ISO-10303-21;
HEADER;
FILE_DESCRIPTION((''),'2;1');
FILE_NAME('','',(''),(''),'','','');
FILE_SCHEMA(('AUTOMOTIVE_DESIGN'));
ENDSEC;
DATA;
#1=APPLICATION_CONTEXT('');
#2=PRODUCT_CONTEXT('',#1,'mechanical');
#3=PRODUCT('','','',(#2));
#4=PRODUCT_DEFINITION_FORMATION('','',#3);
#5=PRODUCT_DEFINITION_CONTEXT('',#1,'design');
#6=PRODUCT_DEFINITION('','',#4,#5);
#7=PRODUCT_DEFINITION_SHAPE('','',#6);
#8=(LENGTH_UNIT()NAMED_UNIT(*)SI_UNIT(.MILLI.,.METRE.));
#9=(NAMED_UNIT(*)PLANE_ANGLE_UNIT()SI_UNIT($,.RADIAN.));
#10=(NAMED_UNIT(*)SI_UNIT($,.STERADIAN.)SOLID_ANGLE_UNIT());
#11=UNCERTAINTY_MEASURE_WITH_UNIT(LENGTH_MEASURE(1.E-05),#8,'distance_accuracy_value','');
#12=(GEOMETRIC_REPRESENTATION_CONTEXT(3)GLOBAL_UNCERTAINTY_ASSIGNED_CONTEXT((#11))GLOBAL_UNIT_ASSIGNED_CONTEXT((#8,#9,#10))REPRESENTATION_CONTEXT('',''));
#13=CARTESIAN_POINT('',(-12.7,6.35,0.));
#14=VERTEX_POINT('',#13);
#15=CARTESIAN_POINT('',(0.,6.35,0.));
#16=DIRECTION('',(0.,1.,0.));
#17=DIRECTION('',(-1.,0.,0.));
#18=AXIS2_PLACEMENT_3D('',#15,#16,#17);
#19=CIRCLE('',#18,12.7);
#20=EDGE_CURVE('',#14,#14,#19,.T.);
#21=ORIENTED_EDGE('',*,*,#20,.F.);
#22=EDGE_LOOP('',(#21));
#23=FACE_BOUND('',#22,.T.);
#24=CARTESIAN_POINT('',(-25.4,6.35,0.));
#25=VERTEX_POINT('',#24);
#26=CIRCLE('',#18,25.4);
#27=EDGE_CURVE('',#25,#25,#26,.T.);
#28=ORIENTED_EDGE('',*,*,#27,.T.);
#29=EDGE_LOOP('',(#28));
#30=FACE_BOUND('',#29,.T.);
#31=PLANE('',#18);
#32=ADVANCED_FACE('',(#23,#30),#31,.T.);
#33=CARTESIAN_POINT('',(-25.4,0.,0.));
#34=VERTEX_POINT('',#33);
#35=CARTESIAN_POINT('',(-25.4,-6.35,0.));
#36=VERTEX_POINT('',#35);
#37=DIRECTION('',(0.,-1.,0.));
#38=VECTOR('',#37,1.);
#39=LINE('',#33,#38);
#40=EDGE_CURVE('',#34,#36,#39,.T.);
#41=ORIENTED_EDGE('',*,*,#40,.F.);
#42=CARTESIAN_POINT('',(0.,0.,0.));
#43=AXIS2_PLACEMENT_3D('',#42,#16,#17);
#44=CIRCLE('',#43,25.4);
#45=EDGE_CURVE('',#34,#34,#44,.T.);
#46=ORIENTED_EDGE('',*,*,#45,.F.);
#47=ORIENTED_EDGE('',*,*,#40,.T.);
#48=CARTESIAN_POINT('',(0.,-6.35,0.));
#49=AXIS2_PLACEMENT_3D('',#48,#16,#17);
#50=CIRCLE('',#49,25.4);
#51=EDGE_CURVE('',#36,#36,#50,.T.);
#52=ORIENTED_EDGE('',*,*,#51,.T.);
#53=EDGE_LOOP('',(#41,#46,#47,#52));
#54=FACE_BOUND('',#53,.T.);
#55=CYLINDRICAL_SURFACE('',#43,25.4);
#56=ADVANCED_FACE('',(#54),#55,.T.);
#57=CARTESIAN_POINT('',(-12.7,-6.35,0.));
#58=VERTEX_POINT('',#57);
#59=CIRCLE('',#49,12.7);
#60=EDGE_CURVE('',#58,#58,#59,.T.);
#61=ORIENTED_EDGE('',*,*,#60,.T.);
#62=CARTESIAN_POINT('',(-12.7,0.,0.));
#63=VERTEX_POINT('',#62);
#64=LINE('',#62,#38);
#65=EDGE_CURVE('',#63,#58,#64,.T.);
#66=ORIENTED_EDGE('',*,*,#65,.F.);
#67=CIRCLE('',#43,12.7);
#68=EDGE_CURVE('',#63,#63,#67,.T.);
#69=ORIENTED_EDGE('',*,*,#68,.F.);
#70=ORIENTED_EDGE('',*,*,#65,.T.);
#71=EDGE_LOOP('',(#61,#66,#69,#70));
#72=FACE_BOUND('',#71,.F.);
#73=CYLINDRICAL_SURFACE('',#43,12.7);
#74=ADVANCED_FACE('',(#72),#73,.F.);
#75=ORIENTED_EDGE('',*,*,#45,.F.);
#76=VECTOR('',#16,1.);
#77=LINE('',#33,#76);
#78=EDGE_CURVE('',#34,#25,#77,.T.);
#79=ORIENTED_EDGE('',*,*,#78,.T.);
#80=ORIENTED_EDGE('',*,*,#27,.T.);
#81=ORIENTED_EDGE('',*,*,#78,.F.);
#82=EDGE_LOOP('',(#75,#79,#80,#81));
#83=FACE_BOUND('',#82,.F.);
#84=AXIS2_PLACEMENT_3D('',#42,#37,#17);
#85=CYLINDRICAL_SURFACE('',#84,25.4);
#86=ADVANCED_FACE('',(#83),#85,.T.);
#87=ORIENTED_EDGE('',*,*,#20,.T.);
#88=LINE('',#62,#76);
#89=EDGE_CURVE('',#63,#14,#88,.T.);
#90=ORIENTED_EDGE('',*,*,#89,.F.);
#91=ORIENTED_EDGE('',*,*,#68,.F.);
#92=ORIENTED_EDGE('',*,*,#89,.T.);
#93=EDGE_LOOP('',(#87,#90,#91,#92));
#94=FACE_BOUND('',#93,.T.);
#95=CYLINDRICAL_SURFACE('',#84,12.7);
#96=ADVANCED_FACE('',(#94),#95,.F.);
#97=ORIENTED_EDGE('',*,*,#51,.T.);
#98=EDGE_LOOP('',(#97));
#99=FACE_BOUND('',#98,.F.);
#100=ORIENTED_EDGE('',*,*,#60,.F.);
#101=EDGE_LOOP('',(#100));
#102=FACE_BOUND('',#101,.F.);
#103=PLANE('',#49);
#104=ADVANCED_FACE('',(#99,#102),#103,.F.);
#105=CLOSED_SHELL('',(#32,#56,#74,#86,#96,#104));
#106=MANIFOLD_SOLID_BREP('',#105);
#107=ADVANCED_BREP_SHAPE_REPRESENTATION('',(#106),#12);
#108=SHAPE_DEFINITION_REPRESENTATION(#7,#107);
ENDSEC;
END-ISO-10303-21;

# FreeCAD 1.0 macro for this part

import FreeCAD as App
import Part
import Sketcher

V = App.Vector
Q = App.Units.Quantity

doc = App.newDocument("Part")
body = doc.addObject("PartDesign::Body", "Body")

# Sketch on XZ plane
sketch1 = body.newObject("Sketcher::SketchObject", "Sketch")
sketch1.AttachmentSupport = (doc.getObject("XZ_Plane"), [""])
sketch1.MapMode = "FlatFace"
sketch1.addGeometry(Part.Circle(V(0, 0, 0), V(0, 0, 1), 25), False)
sketch1.addGeometry(Part.Circle(V(0, 0, 0), V(0, 0, 1), 13), False)
sketch1.addConstraint(Sketcher.Constraint("Coincident", 0, 3, -1, 1))
sketch1.addConstraint(Sketcher.Constraint("Coincident", 1, 3, -1, 1))
sketch1.addConstraint(Sketcher.Constraint("Diameter", 0, Q("2 in")))
sketch1.addConstraint(Sketcher.Constraint("Diameter", 1, Q("1 in")))
pad1 = body.newObject("PartDesign::Pad", "Pad")
pad1.Profile = sketch1
pad1.Length = Q("0.5 in")
pad1.Midplane = True

doc.recompute()
